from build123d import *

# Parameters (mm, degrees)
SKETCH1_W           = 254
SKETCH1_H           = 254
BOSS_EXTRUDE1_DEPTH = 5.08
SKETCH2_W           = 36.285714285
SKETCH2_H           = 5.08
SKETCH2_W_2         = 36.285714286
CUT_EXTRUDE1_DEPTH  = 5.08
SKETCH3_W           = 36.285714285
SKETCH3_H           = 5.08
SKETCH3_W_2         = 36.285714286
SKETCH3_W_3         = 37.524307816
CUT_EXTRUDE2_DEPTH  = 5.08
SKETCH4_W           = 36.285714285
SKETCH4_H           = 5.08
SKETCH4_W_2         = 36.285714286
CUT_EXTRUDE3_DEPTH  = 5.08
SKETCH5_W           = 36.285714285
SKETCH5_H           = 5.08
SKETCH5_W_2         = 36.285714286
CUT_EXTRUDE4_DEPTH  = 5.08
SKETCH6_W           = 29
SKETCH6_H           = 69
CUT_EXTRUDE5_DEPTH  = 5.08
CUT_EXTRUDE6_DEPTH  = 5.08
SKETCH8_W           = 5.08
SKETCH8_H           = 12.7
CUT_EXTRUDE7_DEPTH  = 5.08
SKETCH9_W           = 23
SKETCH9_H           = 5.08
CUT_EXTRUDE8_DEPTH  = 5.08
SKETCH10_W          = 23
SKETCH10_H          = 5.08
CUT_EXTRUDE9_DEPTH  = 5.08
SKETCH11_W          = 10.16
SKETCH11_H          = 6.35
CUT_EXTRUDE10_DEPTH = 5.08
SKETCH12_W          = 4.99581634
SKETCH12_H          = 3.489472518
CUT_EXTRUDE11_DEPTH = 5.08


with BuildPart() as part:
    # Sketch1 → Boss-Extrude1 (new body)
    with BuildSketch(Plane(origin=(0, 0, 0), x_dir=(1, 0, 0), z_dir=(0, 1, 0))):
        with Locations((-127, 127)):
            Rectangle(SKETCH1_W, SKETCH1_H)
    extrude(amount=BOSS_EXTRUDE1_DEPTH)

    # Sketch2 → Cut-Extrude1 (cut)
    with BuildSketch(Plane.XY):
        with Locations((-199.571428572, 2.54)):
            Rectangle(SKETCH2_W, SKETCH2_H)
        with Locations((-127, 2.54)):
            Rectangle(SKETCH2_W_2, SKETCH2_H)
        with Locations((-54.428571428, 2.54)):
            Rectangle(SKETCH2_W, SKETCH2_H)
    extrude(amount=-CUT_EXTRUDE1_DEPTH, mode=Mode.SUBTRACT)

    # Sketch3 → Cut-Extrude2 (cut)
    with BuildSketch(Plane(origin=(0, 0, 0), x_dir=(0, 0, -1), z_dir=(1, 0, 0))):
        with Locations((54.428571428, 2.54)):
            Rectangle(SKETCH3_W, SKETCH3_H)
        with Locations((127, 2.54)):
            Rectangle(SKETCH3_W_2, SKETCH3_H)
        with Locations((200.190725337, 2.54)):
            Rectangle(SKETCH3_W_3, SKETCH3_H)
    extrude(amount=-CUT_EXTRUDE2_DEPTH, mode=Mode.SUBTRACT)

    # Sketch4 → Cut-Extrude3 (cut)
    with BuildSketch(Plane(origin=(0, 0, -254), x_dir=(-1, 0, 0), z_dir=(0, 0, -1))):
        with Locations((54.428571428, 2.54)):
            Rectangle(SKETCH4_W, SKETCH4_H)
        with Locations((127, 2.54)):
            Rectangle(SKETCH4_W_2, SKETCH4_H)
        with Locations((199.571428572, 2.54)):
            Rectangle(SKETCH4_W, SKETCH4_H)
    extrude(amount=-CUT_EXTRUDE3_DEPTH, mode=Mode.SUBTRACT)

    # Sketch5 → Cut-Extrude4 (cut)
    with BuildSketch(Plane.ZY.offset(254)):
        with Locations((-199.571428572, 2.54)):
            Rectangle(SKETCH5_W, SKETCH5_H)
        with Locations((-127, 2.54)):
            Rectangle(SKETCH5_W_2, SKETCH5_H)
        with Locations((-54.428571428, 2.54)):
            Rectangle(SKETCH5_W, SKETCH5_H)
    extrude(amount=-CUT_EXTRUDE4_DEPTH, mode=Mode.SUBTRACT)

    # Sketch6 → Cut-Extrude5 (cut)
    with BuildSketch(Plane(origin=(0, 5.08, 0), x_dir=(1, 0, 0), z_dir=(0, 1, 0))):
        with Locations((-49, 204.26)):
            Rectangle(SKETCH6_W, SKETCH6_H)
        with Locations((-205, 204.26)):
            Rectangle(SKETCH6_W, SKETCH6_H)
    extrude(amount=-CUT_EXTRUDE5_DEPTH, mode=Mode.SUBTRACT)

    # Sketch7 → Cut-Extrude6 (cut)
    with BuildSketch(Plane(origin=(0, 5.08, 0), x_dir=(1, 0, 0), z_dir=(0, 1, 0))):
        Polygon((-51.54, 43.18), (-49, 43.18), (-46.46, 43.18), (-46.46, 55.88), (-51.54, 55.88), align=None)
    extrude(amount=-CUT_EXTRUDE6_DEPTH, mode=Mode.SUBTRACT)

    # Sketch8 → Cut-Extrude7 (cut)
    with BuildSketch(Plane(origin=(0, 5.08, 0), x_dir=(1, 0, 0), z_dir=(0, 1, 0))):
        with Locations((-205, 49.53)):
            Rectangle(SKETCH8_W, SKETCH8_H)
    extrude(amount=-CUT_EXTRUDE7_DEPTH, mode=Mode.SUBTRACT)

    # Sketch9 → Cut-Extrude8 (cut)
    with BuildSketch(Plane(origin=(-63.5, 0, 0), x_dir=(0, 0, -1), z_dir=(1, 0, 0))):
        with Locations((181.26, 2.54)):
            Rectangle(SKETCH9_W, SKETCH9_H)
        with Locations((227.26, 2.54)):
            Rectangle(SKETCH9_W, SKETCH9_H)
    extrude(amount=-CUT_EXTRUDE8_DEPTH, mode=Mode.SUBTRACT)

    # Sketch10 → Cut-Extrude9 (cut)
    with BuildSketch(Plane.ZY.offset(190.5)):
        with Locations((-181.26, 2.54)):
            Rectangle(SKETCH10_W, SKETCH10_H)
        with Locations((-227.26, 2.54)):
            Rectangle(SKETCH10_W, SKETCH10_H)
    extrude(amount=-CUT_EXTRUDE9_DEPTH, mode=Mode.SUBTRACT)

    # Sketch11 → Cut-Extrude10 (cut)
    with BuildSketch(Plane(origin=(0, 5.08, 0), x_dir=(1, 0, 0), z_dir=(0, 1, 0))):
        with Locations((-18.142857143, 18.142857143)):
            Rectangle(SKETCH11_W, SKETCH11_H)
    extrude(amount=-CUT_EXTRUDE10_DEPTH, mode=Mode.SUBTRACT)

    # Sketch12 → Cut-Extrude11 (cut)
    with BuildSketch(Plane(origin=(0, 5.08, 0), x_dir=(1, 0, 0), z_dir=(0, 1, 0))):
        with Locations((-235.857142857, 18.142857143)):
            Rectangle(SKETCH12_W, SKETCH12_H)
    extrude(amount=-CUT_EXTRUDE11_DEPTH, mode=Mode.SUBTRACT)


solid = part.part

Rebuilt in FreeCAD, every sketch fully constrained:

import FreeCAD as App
import Part
import Sketcher

V = App.Vector
Q = App.Units.Quantity


def add_polygon(sketch, points):
    """Adds a closed chain of lines whose ends are joined by coincident constraints."""
    first, n = sketch.GeometryCount, len(points)
    for a, b in zip(points, points[1:] + points[:1]):
        sketch.addGeometry(Part.LineSegment(App.Vector(*a, 0), App.Vector(*b, 0)), False)
    for i in range(n):
        sketch.addConstraint(Sketcher.Constraint("Coincident", first + i, 2, first + (i + 1) % n, 1))

doc = App.newDocument("Part")
body = doc.addObject("PartDesign::Body", "Body")

# Sketch on XZ plane
sketch1 = body.newObject("Sketcher::SketchObject", "Sketch")
sketch1.AttachmentSupport = (doc.getObject("XZ_Plane"), [""])
sketch1.MapMode = "FlatFace"
add_polygon(sketch1, [(-254, -254), (-254, 0), (0, 0), (0, -254)])  # lines 0-3
sketch1.addConstraint(Sketcher.Constraint("Vertical", 0))
sketch1.addConstraint(Sketcher.Constraint("Horizontal", 1))
sketch1.addConstraint(Sketcher.Constraint("Vertical", 2))
sketch1.addConstraint(Sketcher.Constraint("Horizontal", 3))
sketch1.addConstraint(Sketcher.Constraint("Coincident", 1, 2, -1, 1))
sketch1.addConstraint(Sketcher.Constraint("Equal", 3, 0))
sketch1.addConstraint(Sketcher.Constraint("DistanceX", 1, 1, 1, 2, Q("10 in")))
pad1 = body.newObject("PartDesign::Pad", "Pad")
pad1.Profile = sketch1
pad1.Length = Q("0.2 in")
pad1.Reversed = True

# Sketch on XY plane
sketch2 = body.newObject("Sketcher::SketchObject", "Sketch001")
sketch2.AttachmentSupport = (doc.getObject("XY_Plane"), [""])
sketch2.MapMode = "FlatFace"
add_polygon(sketch2, [(-217.714286, 5.08), (-217.714286, 0), (-181.428571, 0), (-181.428571, 5.08)])  # lines 0-3
add_polygon(sketch2, [(-145.142857, 5.08), (-145.142857, 0), (-108.857143, 0), (-108.857143, 5.08)])  # lines 4-7
add_polygon(sketch2, [(-72.571429, 5.08), (-72.571429, 0), (-36.285714, 0), (-36.285714, 5.08)])  # lines 8-11
sketch2.addConstraint(Sketcher.Constraint("Vertical", 0))
sketch2.addConstraint(Sketcher.Constraint("Horizontal", 1))
sketch2.addConstraint(Sketcher.Constraint("Vertical", 2))
sketch2.addConstraint(Sketcher.Constraint("Horizontal", 3))
sketch2.addConstraint(Sketcher.Constraint("Vertical", 4))
sketch2.addConstraint(Sketcher.Constraint("Horizontal", 5))
sketch2.addConstraint(Sketcher.Constraint("Vertical", 6))
sketch2.addConstraint(Sketcher.Constraint("Horizontal", 7))
sketch2.addConstraint(Sketcher.Constraint("Vertical", 8))
sketch2.addConstraint(Sketcher.Constraint("Horizontal", 9))
sketch2.addConstraint(Sketcher.Constraint("Vertical", 10))
sketch2.addConstraint(Sketcher.Constraint("Horizontal", 11))
sketch2.addConstraint(Sketcher.Constraint("PointOnObject", 0, 2, -1))
sketch2.addConstraint(Sketcher.Constraint("PointOnObject", 4, 2, -1))
sketch2.addConstraint(Sketcher.Constraint("PointOnObject", 8, 2, -1))
sketch2.addConstraint(Sketcher.Constraint("Horizontal", 3, 2, 6, 2))
sketch2.addConstraint(Sketcher.Constraint("Horizontal", 7, 2, 10, 2))
sketch2.addConstraint(Sketcher.Constraint("Equal", 3, 5))
sketch2.addConstraint(Sketcher.Constraint("Equal", 7, 9))
sketch2.addConstraint(Sketcher.Constraint("DistanceY", 0, 2, 0, 1, Q("0.2 in")))
sketch2.addConstraint(Sketcher.Constraint("DistanceX", 1, 1, 1, 2, Q("36.285714 mm")))
sketch2.addConstraint(Sketcher.Constraint("DistanceX", 1, 2, -1, 1, Q("181.428571 mm")))
sketch2.addConstraint(Sketcher.Constraint("DistanceX", 8, 2, -1, 1, Q("72.571429 mm")))
sketch2.addConstraint(Sketcher.Constraint("DistanceX", 0, 2, 4, 2, Q("72.571429 mm")))
pocket1 = body.newObject("PartDesign::Pocket", "Pocket")
pocket1.Profile = sketch2
pocket1.Length = Q("0.2 in")

# Sketch on YZ plane
sketch3 = body.newObject("Sketcher::SketchObject", "Sketch002")
sketch3.AttachmentSupport = (doc.getObject("YZ_Plane"), [""])
sketch3.MapMode = "FlatFace"
add_polygon(sketch3, [(5.08, -36.285714), (0, -36.285714), (0, -72.571429), (5.08, -72.571429)])  # lines 0-3
add_polygon(sketch3, [(5.08, -108.857143), (0, -108.857143), (0, -145.142857), (5.08, -145.142857)])  # lines 4-7
add_polygon(sketch3, [(5.08, -181.428571), (0, -181.428571), (0, -218.952879), (5.08, -218.952879)])  # lines 8-11
sketch3.addConstraint(Sketcher.Constraint("Horizontal", 0))
sketch3.addConstraint(Sketcher.Constraint("Vertical", 1))
sketch3.addConstraint(Sketcher.Constraint("Horizontal", 2))
sketch3.addConstraint(Sketcher.Constraint("Vertical", 3))
sketch3.addConstraint(Sketcher.Constraint("Horizontal", 4))
sketch3.addConstraint(Sketcher.Constraint("Vertical", 5))
sketch3.addConstraint(Sketcher.Constraint("Horizontal", 6))
sketch3.addConstraint(Sketcher.Constraint("Vertical", 7))
sketch3.addConstraint(Sketcher.Constraint("Horizontal", 8))
sketch3.addConstraint(Sketcher.Constraint("Vertical", 9))
sketch3.addConstraint(Sketcher.Constraint("Horizontal", 10))
sketch3.addConstraint(Sketcher.Constraint("Vertical", 11))
sketch3.addConstraint(Sketcher.Constraint("PointOnObject", 0, 2, -2))
sketch3.addConstraint(Sketcher.Constraint("PointOnObject", 4, 2, -2))
sketch3.addConstraint(Sketcher.Constraint("PointOnObject", 8, 2, -2))
sketch3.addConstraint(Sketcher.Constraint("Vertical", 3, 2, 6, 2))
sketch3.addConstraint(Sketcher.Constraint("Vertical", 7, 2, 10, 2))
sketch3.addConstraint(Sketcher.Constraint("Equal", 3, 5))
sketch3.addConstraint(Sketcher.Constraint("DistanceX", 0, 2, 0, 1, Q("0.2 in")))
sketch3.addConstraint(Sketcher.Constraint("DistanceY", 1, 2, 1, 1, Q("36.285714 mm")))
sketch3.addConstraint(Sketcher.Constraint("DistanceY", 9, 2, 9, 1, Q("37.524308 mm")))
sketch3.addConstraint(Sketcher.Constraint("DistanceY", 1, 2, -1, 1, Q("72.571429 mm")))
sketch3.addConstraint(Sketcher.Constraint("DistanceY", 8, 2, -1, 1, Q("181.428571 mm")))
sketch3.addConstraint(Sketcher.Constraint("DistanceY", 4, 2, 0, 2, Q("72.571429 mm")))
pocket2 = body.newObject("PartDesign::Pocket", "Pocket001")
pocket2.Profile = sketch3
pocket2.Length = Q("0.2 in")

# Sketch on XY plane
sketch4 = body.newObject("Sketcher::SketchObject", "Sketch003")
sketch4.AttachmentSupport = (doc.getObject("XY_Plane"), [""])
sketch4.MapMode = "FlatFace"
sketch4.AttachmentOffset = App.Placement(V(0, 0, -10 * 25.4), App.Rotation())
add_polygon(sketch4, [(-36.285714, 5.08), (-36.285714, 0), (-72.571429, 0), (-72.571429, 5.08)])  # lines 0-3
add_polygon(sketch4, [(-108.857143, 5.08), (-108.857143, 0), (-145.142857, 0), (-145.142857, 5.08)])  # lines 4-7
add_polygon(sketch4, [(-181.428571, 5.08), (-181.428571, 0), (-217.714286, 0), (-217.714286, 5.08)])  # lines 8-11
sketch4.addConstraint(Sketcher.Constraint("Vertical", 0))
sketch4.addConstraint(Sketcher.Constraint("Horizontal", 1))
sketch4.addConstraint(Sketcher.Constraint("Vertical", 2))
sketch4.addConstraint(Sketcher.Constraint("Horizontal", 3))
sketch4.addConstraint(Sketcher.Constraint("Vertical", 4))
sketch4.addConstraint(Sketcher.Constraint("Horizontal", 5))
sketch4.addConstraint(Sketcher.Constraint("Vertical", 6))
sketch4.addConstraint(Sketcher.Constraint("Horizontal", 7))
sketch4.addConstraint(Sketcher.Constraint("Vertical", 8))
sketch4.addConstraint(Sketcher.Constraint("Horizontal", 9))
sketch4.addConstraint(Sketcher.Constraint("Vertical", 10))
sketch4.addConstraint(Sketcher.Constraint("Horizontal", 11))
sketch4.addConstraint(Sketcher.Constraint("PointOnObject", 0, 2, -1))
sketch4.addConstraint(Sketcher.Constraint("PointOnObject", 4, 2, -1))
sketch4.addConstraint(Sketcher.Constraint("PointOnObject", 8, 2, -1))
sketch4.addConstraint(Sketcher.Constraint("Horizontal", 3, 2, 6, 2))
sketch4.addConstraint(Sketcher.Constraint("Horizontal", 7, 2, 10, 2))
sketch4.addConstraint(Sketcher.Constraint("Equal", 3, 5))
sketch4.addConstraint(Sketcher.Constraint("Equal", 7, 9))
sketch4.addConstraint(Sketcher.Constraint("DistanceY", 0, 2, 0, 1, Q("0.2 in")))
sketch4.addConstraint(Sketcher.Constraint("DistanceX", 1, 2, 1, 1, Q("36.285714 mm")))
sketch4.addConstraint(Sketcher.Constraint("DistanceX", 1, 2, -1, 1, Q("72.571429 mm")))
sketch4.addConstraint(Sketcher.Constraint("DistanceX", 8, 2, -1, 1, Q("181.428571 mm")))
sketch4.addConstraint(Sketcher.Constraint("DistanceX", 4, 2, 0, 2, Q("72.571429 mm")))
pocket3 = body.newObject("PartDesign::Pocket", "Pocket002")
pocket3.Profile = sketch4
pocket3.Length = Q("0.2 in")
pocket3.Reversed = True

# Sketch on YZ plane
sketch5 = body.newObject("Sketcher::SketchObject", "Sketch004")
sketch5.AttachmentSupport = (doc.getObject("YZ_Plane"), [""])
sketch5.MapMode = "FlatFace"
sketch5.AttachmentOffset = App.Placement(V(0, 0, -10 * 25.4), App.Rotation())
add_polygon(sketch5, [(5.08, -217.714286), (0, -217.714286), (0, -181.428571), (5.08, -181.428571)])  # lines 0-3
add_polygon(sketch5, [(5.08, -145.142857), (0, -145.142857), (0, -108.857143), (5.08, -108.857143)])  # lines 4-7
add_polygon(sketch5, [(5.08, -72.571429), (0, -72.571429), (0, -36.285714), (5.08, -36.285714)])  # lines 8-11
sketch5.addConstraint(Sketcher.Constraint("Horizontal", 0))
sketch5.addConstraint(Sketcher.Constraint("Vertical", 1))
sketch5.addConstraint(Sketcher.Constraint("Horizontal", 2))
sketch5.addConstraint(Sketcher.Constraint("Vertical", 3))
sketch5.addConstraint(Sketcher.Constraint("Horizontal", 4))
sketch5.addConstraint(Sketcher.Constraint("Vertical", 5))
sketch5.addConstraint(Sketcher.Constraint("Horizontal", 6))
sketch5.addConstraint(Sketcher.Constraint("Vertical", 7))
sketch5.addConstraint(Sketcher.Constraint("Horizontal", 8))
sketch5.addConstraint(Sketcher.Constraint("Vertical", 9))
sketch5.addConstraint(Sketcher.Constraint("Horizontal", 10))
sketch5.addConstraint(Sketcher.Constraint("Vertical", 11))
sketch5.addConstraint(Sketcher.Constraint("PointOnObject", 0, 2, -2))
sketch5.addConstraint(Sketcher.Constraint("PointOnObject", 4, 2, -2))
sketch5.addConstraint(Sketcher.Constraint("PointOnObject", 8, 2, -2))
sketch5.addConstraint(Sketcher.Constraint("Vertical", 3, 2, 6, 2))
sketch5.addConstraint(Sketcher.Constraint("Vertical", 7, 2, 10, 2))
sketch5.addConstraint(Sketcher.Constraint("Equal", 3, 5))
sketch5.addConstraint(Sketcher.Constraint("Equal", 7, 9))
sketch5.addConstraint(Sketcher.Constraint("DistanceX", 0, 2, 0, 1, Q("0.2 in")))
sketch5.addConstraint(Sketcher.Constraint("DistanceY", 1, 1, 1, 2, Q("36.285714 mm")))
sketch5.addConstraint(Sketcher.Constraint("DistanceY", 1, 2, -1, 1, Q("181.428571 mm")))
sketch5.addConstraint(Sketcher.Constraint("DistanceY", 8, 2, -1, 1, Q("72.571429 mm")))
sketch5.addConstraint(Sketcher.Constraint("DistanceY", 0, 2, 4, 2, Q("72.571429 mm")))
pocket4 = body.newObject("PartDesign::Pocket", "Pocket003")
pocket4.Profile = sketch5
pocket4.Length = Q("0.2 in")
pocket4.Reversed = True

# Sketch on XZ plane
sketch6 = body.newObject("Sketcher::SketchObject", "Sketch005")
sketch6.AttachmentSupport = (doc.getObject("XZ_Plane"), [""])
sketch6.MapMode = "FlatFace"
sketch6.AttachmentOffset = App.Placement(V(0, 0, -0.2 * 25.4), App.Rotation())
add_polygon(sketch6, [(-63.5, -238.76), (-63.5, -169.76), (-34.5, -169.76), (-34.5, -238.76)])  # lines 0-3
add_polygon(sketch6, [(-219.5, -238.76), (-219.5, -169.76), (-190.5, -169.76), (-190.5, -238.76)])  # lines 4-7
sketch6.addConstraint(Sketcher.Constraint("Vertical", 0))
sketch6.addConstraint(Sketcher.Constraint("Horizontal", 1))
sketch6.addConstraint(Sketcher.Constraint("Vertical", 2))
sketch6.addConstraint(Sketcher.Constraint("Horizontal", 3))
sketch6.addConstraint(Sketcher.Constraint("Vertical", 4))
sketch6.addConstraint(Sketcher.Constraint("Horizontal", 5))
sketch6.addConstraint(Sketcher.Constraint("Vertical", 6))
sketch6.addConstraint(Sketcher.Constraint("Horizontal", 7))
sketch6.addConstraint(Sketcher.Constraint("Horizontal", 1, 2, 4, 2))
sketch6.addConstraint(Sketcher.Constraint("Horizontal", 3, 2, 6, 2))
sketch6.addConstraint(Sketcher.Constraint("Equal", 3, 5))
sketch6.addConstraint(Sketcher.Constraint("DistanceX", 5, 2, 0, 2, Q("5 in")))
sketch6.addConstraint(Sketcher.Constraint("DistanceX", 0, 2, -1, 1, Q("2.5 in")))
sketch6.addConstraint(Sketcher.Constraint("DistanceY", 2, 2, -1, 1, Q("9.4 in")))
sketch6.addConstraint(Sketcher.Constraint("DistanceX", 1, 1, 1, 2, Q("29 mm")))
sketch6.addConstraint(Sketcher.Constraint("DistanceY", 0, 1, 0, 2, Q("69 mm")))
pocket5 = body.newObject("PartDesign::Pocket", "Pocket004")
pocket5.Profile = sketch6
pocket5.Length = Q("0.2 in")
pocket5.Reversed = True

# Sketch on XZ plane
sketch7 = body.newObject("Sketcher::SketchObject", "Sketch006")
sketch7.AttachmentSupport = (doc.getObject("XZ_Plane"), [""])
sketch7.MapMode = "FlatFace"
sketch7.AttachmentOffset = App.Placement(V(0, 0, -0.2 * 25.4), App.Rotation())
add_polygon(sketch7, [(-51.54, -43.18), (-46.46, -43.18), (-46.46, -55.88), (-51.54, -55.88)])  # lines 0-3
sketch7.addConstraint(Sketcher.Constraint("Horizontal", 0))
sketch7.addConstraint(Sketcher.Constraint("Vertical", 1))
sketch7.addConstraint(Sketcher.Constraint("Horizontal", 2))
sketch7.addConstraint(Sketcher.Constraint("Vertical", 3))
sketch7.addConstraint(Sketcher.Constraint("DistanceX", 0, 1, 0, 2, Q("0.2 in")))
sketch7.addConstraint(Sketcher.Constraint("DistanceY", 1, 2, 1, 1, Q("0.5 in")))
sketch7.addConstraint(Sketcher.Constraint("DistanceY", 0, 2, -1, 1, Q("1.7 in")))
sketch7.addConstraint(Sketcher.Constraint("DistanceX", 0, 2, -1, 1, Q("46.46 mm")))
pocket6 = body.newObject("PartDesign::Pocket", "Pocket005")
pocket6.Profile = sketch7
pocket6.Length = Q("0.2 in")
pocket6.Reversed = True

# Sketch on XZ plane
sketch8 = body.newObject("Sketcher::SketchObject", "Sketch007")
sketch8.AttachmentSupport = (doc.getObject("XZ_Plane"), [""])
sketch8.MapMode = "FlatFace"
sketch8.AttachmentOffset = App.Placement(V(0, 0, -0.2 * 25.4), App.Rotation())
add_polygon(sketch8, [(-207.54, -55.88), (-207.54, -43.18), (-202.46, -43.18), (-202.46, -55.88)])  # lines 0-3
sketch8.addConstraint(Sketcher.Constraint("Vertical", 0))
sketch8.addConstraint(Sketcher.Constraint("Horizontal", 1))
sketch8.addConstraint(Sketcher.Constraint("Vertical", 2))
sketch8.addConstraint(Sketcher.Constraint("Horizontal", 3))
sketch8.addConstraint(Sketcher.Constraint("DistanceX", 1, 1, 1, 2, Q("0.2 in")))
sketch8.addConstraint(Sketcher.Constraint("DistanceY", 0, 1, 0, 2, Q("0.5 in")))
sketch8.addConstraint(Sketcher.Constraint("DistanceY", 0, 2, -1, 1, Q("1.7 in")))
sketch8.addConstraint(Sketcher.Constraint("DistanceX", 0, 2, -1, 1, Q("207.54 mm")))
pocket7 = body.newObject("PartDesign::Pocket", "Pocket006")
pocket7.Profile = sketch8
pocket7.Length = Q("0.2 in")
pocket7.Reversed = True

# Sketch on YZ plane
sketch9 = body.newObject("Sketcher::SketchObject", "Sketch008")
sketch9.AttachmentSupport = (doc.getObject("YZ_Plane"), [""])
sketch9.MapMode = "FlatFace"
sketch9.AttachmentOffset = App.Placement(V(0, 0, -2.5 * 25.4), App.Rotation())
add_polygon(sketch9, [(5.08, -169.76), (0, -169.76), (0, -192.76), (5.08, -192.76)])  # lines 0-3
add_polygon(sketch9, [(5.08, -215.76), (0, -215.76), (0, -238.76), (5.08, -238.76)])  # lines 4-7
sketch9.addConstraint(Sketcher.Constraint("Horizontal", 0))
sketch9.addConstraint(Sketcher.Constraint("Vertical", 1))
sketch9.addConstraint(Sketcher.Constraint("Horizontal", 2))
sketch9.addConstraint(Sketcher.Constraint("Vertical", 3))
sketch9.addConstraint(Sketcher.Constraint("Horizontal", 4))
sketch9.addConstraint(Sketcher.Constraint("Vertical", 5))
sketch9.addConstraint(Sketcher.Constraint("Horizontal", 6))
sketch9.addConstraint(Sketcher.Constraint("Vertical", 7))
sketch9.addConstraint(Sketcher.Constraint("PointOnObject", 0, 2, -2))
sketch9.addConstraint(Sketcher.Constraint("PointOnObject", 4, 2, -2))
sketch9.addConstraint(Sketcher.Constraint("Vertical", 3, 2, 6, 2))
sketch9.addConstraint(Sketcher.Constraint("Equal", 3, 5))
sketch9.addConstraint(Sketcher.Constraint("DistanceX", 0, 2, 0, 1, Q("0.2 in")))
sketch9.addConstraint(Sketcher.Constraint("DistanceY", 5, 2, -1, 1, Q("9.4 in")))
sketch9.addConstraint(Sketcher.Constraint("DistanceY", 1, 2, 1, 1, Q("23 mm")))
sketch9.addConstraint(Sketcher.Constraint("DistanceY", 0, 2, -1, 1, Q("169.76 mm")))
pocket8 = body.newObject("PartDesign::Pocket", "Pocket007")
pocket8.Profile = sketch9
pocket8.Length = Q("0.2 in")

# Sketch on YZ plane
sketch10 = body.newObject("Sketcher::SketchObject", "Sketch009")
sketch10.AttachmentSupport = (doc.getObject("YZ_Plane"), [""])
sketch10.MapMode = "FlatFace"
sketch10.AttachmentOffset = App.Placement(V(0, 0, -7.5 * 25.4), App.Rotation())
add_polygon(sketch10, [(5.08, -192.76), (0, -192.76), (0, -169.76), (5.08, -169.76)])  # lines 0-3
add_polygon(sketch10, [(5.08, -238.76), (0, -238.76), (0, -215.76), (5.08, -215.76)])  # lines 4-7
sketch10.addConstraint(Sketcher.Constraint("Horizontal", 0))
sketch10.addConstraint(Sketcher.Constraint("Vertical", 1))
sketch10.addConstraint(Sketcher.Constraint("Horizontal", 2))
sketch10.addConstraint(Sketcher.Constraint("Vertical", 3))
sketch10.addConstraint(Sketcher.Constraint("Horizontal", 4))
sketch10.addConstraint(Sketcher.Constraint("Vertical", 5))
sketch10.addConstraint(Sketcher.Constraint("Horizontal", 6))
sketch10.addConstraint(Sketcher.Constraint("Vertical", 7))
sketch10.addConstraint(Sketcher.Constraint("PointOnObject", 0, 2, -2))
sketch10.addConstraint(Sketcher.Constraint("PointOnObject", 4, 2, -2))
sketch10.addConstraint(Sketcher.Constraint("Vertical", 3, 2, 6, 2))
sketch10.addConstraint(Sketcher.Constraint("Equal", 3, 5))
sketch10.addConstraint(Sketcher.Constraint("DistanceX", 0, 2, 0, 1, Q("0.2 in")))
sketch10.addConstraint(Sketcher.Constraint("DistanceY", 4, 2, -1, 1, Q("9.4 in")))
sketch10.addConstraint(Sketcher.Constraint("DistanceY", 1, 1, 1, 2, Q("23 mm")))
sketch10.addConstraint(Sketcher.Constraint("DistanceY", 0, 2, -1, 1, Q("192.76 mm")))
pocket9 = body.newObject("PartDesign::Pocket", "Pocket008")
pocket9.Profile = sketch10
pocket9.Length = Q("0.2 in")
pocket9.Reversed = True

# Sketch on XZ plane
sketch11 = body.newObject("Sketcher::SketchObject", "Sketch010")
sketch11.AttachmentSupport = (doc.getObject("XZ_Plane"), [""])
sketch11.MapMode = "FlatFace"
sketch11.AttachmentOffset = App.Placement(V(0, 0, -0.2 * 25.4), App.Rotation())
add_polygon(sketch11, [(-23.222857, -21.317857), (-23.222857, -14.967857), (-13.062857, -14.967857), (-13.062857, -21.317857)])  # lines 0-3
sketch11.addConstraint(Sketcher.Constraint("Vertical", 0))
sketch11.addConstraint(Sketcher.Constraint("Horizontal", 1))
sketch11.addConstraint(Sketcher.Constraint("Vertical", 2))
sketch11.addConstraint(Sketcher.Constraint("Horizontal", 3))
sketch11.addConstraint(Sketcher.Constraint("DistanceX", 1, 1, 1, 2, Q("0.4 in")))
sketch11.addConstraint(Sketcher.Constraint("DistanceY", 0, 1, 0, 2, Q("0.25 in")))
sketch11.addConstraint(Sketcher.Constraint("DistanceX", 0, 2, -1, 1, Q("23.222857 mm")))
sketch11.addConstraint(Sketcher.Constraint("DistanceY", 0, 2, -1, 1, Q("14.967857 mm")))
pocket10 = body.newObject("PartDesign::Pocket", "Pocket009")
pocket10.Profile = sketch11
pocket10.Length = Q("0.2 in")
pocket10.Reversed = True

# Sketch on XZ plane
sketch12 = body.newObject("Sketcher::SketchObject", "Sketch011")
sketch12.AttachmentSupport = (doc.getObject("XZ_Plane"), [""])
sketch12.MapMode = "FlatFace"
sketch12.AttachmentOffset = App.Placement(V(0, 0, -0.2 * 25.4), App.Rotation())
add_polygon(sketch12, [(-238.355051, -19.887593), (-238.355051, -16.398121), (-233.359235, -16.398121), (-233.359235, -19.887593)])  # lines 0-3
sketch12.addConstraint(Sketcher.Constraint("Vertical", 0))
sketch12.addConstraint(Sketcher.Constraint("Horizontal", 1))
sketch12.addConstraint(Sketcher.Constraint("Vertical", 2))
sketch12.addConstraint(Sketcher.Constraint("Horizontal", 3))
sketch12.addConstraint(Sketcher.Constraint("DistanceX", 1, 1, 1, 2, Q("4.995816 mm")))
sketch12.addConstraint(Sketcher.Constraint("DistanceY", 0, 1, 0, 2, Q("3.489473 mm")))
sketch12.addConstraint(Sketcher.Constraint("DistanceX", 0, 2, -1, 1, Q("238.355051 mm")))
sketch12.addConstraint(Sketcher.Constraint("DistanceY", 0, 2, -1, 1, Q("16.398121 mm")))
pocket11 = body.newObject("PartDesign::Pocket", "Pocket010")
pocket11.Profile = sketch12
pocket11.Length = Q("0.2 in")
pocket11.Reversed = True

doc.recompute()
